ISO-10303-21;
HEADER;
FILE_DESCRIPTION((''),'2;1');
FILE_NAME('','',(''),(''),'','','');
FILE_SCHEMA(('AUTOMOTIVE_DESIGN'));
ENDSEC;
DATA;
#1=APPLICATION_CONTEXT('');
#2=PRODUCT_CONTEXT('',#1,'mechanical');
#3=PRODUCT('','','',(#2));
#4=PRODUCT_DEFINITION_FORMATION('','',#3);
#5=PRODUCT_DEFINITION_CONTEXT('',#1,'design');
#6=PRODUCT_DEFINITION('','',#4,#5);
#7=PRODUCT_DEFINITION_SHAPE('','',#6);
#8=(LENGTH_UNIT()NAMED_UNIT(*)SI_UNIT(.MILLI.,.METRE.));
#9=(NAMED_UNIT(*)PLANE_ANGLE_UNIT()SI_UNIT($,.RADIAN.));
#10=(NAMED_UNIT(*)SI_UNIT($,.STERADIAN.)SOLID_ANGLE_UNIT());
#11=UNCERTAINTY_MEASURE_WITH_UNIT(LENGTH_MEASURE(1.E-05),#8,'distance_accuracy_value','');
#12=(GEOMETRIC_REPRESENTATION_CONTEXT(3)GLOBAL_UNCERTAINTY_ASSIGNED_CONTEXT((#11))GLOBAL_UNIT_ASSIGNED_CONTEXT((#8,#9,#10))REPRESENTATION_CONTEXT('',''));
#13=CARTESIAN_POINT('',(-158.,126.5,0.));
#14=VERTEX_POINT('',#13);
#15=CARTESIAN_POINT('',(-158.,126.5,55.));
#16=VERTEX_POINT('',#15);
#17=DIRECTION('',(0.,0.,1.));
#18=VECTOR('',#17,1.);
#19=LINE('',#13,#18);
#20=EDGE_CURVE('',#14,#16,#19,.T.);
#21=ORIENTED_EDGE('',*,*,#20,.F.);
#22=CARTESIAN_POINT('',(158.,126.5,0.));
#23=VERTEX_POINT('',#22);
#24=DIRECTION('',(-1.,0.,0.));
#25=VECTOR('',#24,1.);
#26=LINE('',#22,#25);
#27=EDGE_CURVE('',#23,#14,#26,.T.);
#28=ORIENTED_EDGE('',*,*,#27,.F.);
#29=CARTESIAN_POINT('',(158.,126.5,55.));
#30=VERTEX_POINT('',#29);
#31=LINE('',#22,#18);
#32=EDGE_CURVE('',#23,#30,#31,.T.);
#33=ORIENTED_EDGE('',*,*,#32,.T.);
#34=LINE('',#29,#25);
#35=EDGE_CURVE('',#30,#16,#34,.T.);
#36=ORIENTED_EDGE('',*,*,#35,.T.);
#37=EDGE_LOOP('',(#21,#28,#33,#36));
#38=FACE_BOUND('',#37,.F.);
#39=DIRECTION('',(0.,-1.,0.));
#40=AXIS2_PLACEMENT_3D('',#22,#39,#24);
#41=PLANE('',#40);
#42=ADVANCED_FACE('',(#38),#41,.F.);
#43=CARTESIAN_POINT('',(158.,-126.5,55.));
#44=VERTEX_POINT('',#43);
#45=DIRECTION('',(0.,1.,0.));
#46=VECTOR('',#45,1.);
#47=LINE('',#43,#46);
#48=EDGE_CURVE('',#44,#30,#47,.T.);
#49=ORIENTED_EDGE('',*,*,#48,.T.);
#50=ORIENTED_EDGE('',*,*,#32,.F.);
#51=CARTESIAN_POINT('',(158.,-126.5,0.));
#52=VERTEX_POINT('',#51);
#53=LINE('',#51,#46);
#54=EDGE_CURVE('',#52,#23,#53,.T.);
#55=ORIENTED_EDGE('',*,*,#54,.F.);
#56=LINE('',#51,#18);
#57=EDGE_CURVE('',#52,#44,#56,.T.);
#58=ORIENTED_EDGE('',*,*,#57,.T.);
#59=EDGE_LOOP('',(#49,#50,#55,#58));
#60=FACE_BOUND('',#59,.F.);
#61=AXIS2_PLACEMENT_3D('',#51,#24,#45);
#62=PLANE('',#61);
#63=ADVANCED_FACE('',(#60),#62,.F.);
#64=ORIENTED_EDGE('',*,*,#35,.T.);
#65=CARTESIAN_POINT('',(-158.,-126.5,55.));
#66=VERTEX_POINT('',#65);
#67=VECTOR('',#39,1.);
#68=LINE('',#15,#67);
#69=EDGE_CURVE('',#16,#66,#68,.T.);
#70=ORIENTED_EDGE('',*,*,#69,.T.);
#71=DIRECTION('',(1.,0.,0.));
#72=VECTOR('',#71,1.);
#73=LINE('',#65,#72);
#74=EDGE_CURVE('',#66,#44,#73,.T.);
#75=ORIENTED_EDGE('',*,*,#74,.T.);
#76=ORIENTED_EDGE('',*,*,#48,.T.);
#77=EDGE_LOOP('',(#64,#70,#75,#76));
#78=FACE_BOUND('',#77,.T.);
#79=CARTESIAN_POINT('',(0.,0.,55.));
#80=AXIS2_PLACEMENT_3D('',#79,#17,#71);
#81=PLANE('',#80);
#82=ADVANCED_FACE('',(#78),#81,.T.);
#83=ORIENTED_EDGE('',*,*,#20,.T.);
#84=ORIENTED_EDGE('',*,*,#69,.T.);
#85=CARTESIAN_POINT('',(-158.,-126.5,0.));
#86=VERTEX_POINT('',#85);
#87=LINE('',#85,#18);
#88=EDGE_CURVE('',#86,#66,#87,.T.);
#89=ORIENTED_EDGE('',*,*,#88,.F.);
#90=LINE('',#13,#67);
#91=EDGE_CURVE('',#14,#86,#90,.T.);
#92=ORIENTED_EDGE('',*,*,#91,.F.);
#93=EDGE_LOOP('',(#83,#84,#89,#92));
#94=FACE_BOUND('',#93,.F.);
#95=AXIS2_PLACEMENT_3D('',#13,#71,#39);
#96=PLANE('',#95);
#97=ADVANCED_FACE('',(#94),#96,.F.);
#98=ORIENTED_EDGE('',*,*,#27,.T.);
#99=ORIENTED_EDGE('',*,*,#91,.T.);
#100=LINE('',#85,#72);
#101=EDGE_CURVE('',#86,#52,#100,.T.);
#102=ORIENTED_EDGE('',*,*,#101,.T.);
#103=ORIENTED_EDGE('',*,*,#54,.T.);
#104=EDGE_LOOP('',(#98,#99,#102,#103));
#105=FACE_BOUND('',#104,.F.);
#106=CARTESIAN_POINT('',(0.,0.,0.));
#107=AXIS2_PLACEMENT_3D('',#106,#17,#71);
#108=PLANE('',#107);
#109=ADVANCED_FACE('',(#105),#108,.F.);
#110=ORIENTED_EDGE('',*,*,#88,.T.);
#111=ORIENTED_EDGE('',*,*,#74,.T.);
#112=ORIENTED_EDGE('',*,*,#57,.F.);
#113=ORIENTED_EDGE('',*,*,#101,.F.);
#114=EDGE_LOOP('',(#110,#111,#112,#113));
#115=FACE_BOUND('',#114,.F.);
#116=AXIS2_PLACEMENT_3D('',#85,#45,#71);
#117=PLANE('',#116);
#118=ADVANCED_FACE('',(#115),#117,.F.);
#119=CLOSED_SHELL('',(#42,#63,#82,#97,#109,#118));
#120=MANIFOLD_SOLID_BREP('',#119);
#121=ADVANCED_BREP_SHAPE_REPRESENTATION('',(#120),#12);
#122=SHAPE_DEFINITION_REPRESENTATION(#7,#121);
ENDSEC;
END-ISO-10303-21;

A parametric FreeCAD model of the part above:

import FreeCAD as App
import Part
import Sketcher


def add_polygon(sketch, points):
    """Adds a closed chain of lines whose ends are joined by coincident constraints."""
    first, n = sketch.GeometryCount, len(points)
    for a, b in zip(points, points[1:] + points[:1]):
        sketch.addGeometry(Part.LineSegment(App.Vector(*a, 0), App.Vector(*b, 0)), False)
    for i in range(n):
        sketch.addConstraint(Sketcher.Constraint("Coincident", first + i, 2, first + (i + 1) % n, 1))

doc = App.newDocument("Part")
body = doc.addObject("PartDesign::Body", "Body")

# Sketch on XY plane
sketch1 = body.newObject("Sketcher::SketchObject", "Sketch")
sketch1.AttachmentSupport = (doc.getObject("XY_Plane"), [""])
sketch1.MapMode = "FlatFace"
add_polygon(sketch1, [(-158, 126.5), (-158, -126.5), (158, -126.5), (158, 126.5)])  # lines 0-3
sketch1.addConstraint([
    Sketcher.Constraint("Vertical", 0),
    Sketcher.Constraint("Horizontal", 1),
    Sketcher.Constraint("Vertical", 2),
    Sketcher.Constraint("Horizontal", 3),
    Sketcher.Constraint("Symmetric", 0, 2, 2, 2, -1, 1),
    Sketcher.Constraint("DistanceX", 1, 1, 1, 2, 316.0),
    Sketcher.Constraint("DistanceY", 0, 2, 0, 1, 253.0),
])
pad1 = body.newObject("PartDesign::Pad", "Pad")
pad1.Profile = sketch1
pad1.Length = 55

doc.recompute()
